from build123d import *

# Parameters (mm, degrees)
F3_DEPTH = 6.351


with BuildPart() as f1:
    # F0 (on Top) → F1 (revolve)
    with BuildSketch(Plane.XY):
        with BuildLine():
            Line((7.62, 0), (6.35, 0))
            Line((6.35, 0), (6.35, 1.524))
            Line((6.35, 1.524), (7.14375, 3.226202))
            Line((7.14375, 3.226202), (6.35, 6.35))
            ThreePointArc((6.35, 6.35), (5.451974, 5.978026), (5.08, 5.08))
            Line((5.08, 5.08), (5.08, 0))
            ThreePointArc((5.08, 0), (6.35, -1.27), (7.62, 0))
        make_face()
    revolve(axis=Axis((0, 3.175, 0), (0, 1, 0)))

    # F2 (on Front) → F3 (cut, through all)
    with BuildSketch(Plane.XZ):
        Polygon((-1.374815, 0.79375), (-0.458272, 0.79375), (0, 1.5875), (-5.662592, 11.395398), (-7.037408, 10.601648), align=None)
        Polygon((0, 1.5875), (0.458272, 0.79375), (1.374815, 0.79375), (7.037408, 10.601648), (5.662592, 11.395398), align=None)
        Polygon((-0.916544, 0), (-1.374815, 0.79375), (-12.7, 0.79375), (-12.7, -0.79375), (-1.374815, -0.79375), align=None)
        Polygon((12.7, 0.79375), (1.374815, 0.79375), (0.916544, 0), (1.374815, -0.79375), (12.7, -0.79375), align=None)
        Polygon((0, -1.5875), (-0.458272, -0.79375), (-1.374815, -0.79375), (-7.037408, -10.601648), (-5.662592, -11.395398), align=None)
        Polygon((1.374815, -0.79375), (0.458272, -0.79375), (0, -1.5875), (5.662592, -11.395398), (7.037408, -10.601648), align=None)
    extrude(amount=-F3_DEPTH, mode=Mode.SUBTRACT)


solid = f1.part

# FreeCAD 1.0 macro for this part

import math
import FreeCAD as App
import Part
import Sketcher
Q = App.Units.Quantity


def add_polygon(sketch, points):
    """Adds a closed chain of lines whose ends are joined by coincident constraints."""
    first, n = sketch.GeometryCount, len(points)
    for a, b in zip(points, points[1:] + points[:1]):
        sketch.addGeometry(Part.LineSegment(App.Vector(*a, 0), App.Vector(*b, 0)), False)
    for i in range(n):
        sketch.addConstraint(Sketcher.Constraint("Coincident", first + i, 2, first + (i + 1) % n, 1))

doc = App.newDocument("Part")
body = doc.addObject("PartDesign::Body", "Body")

# Sketch on XY plane
sketch1 = doc.addObject("Sketcher::SketchObject", "Sketch")
body.addObject(sketch1)
sketch1.AttachmentSupport = (doc.XY_Plane, [""])
sketch1.MapMode = "FlatFace"
sketch1.addGeometry([
    Part.LineSegment(App.Vector(7.62, 0, 0), App.Vector(6.35, 0, 0)),  # 0
    Part.LineSegment(App.Vector(6.35, 0, 0), App.Vector(6.35, 1.524, 0)),  # 1
    Part.LineSegment(App.Vector(6.35, 1.524, 0), App.Vector(7.14375, 3.226202, 0)),  # 2
    Part.LineSegment(App.Vector(7.14375, 3.226202, 0), App.Vector(6.35, 6.35, 0)),  # 3
    Part.ArcOfCircle(Part.Circle(App.Vector(6.349999, 5.080001, 0), App.Vector(0, 0, 1), 1.269999), math.radians(89.99994), math.radians(180.00006)),  # 4
    Part.LineSegment(App.Vector(5.08, 5.08, 0), App.Vector(5.08, 0, 0)),  # 5
    Part.ArcOfCircle(Part.Circle(App.Vector(6.35, 0, 0), App.Vector(0, 0, 1), 1.27), math.radians(180), math.radians(360)),  # 6
], False)
sketch1.addConstraint([
    Sketcher.Constraint("Coincident", 0, 2, 1, 1),
    Sketcher.Constraint("Coincident", 1, 2, 2, 1),
    Sketcher.Constraint("Coincident", 2, 2, 3, 1),
    Sketcher.Constraint("Coincident", 3, 2, 4, 1),
    Sketcher.Constraint("Tangent", 4, 2, 5, 1),
    Sketcher.Constraint("Tangent", 5, 2, 6, 1),
    Sketcher.Constraint("Coincident", 6, 2, 0, 1),
    Sketcher.Constraint("Horizontal", 0),
    Sketcher.Constraint("Vertical", 1),
    Sketcher.Constraint("Vertical", 5),
    Sketcher.Constraint("Coincident", 0, 2, 6, 3),
    Sketcher.Constraint("Equal", 4, 6),
    Sketcher.Constraint("PointOnObject", 6, 3, -1),
    Sketcher.Constraint("Vertical", 1, 2, 3, 2),
    Sketcher.Constraint("Radius", 4, Q("0.0499999 in")),
    Sketcher.Constraint("DistanceY", 5, 2, 5, 1, Q("0.2 in")),
    Sketcher.Constraint("Angle", 2, Q("64.999995 deg")),
    Sketcher.Constraint("DistanceY", 1, 1, 1, 2, Q("0.06 in")),
    Sketcher.Constraint("DistanceX", -1, 1, 4, 2, Q("0.2 in")),
    Sketcher.Constraint("DistanceX", -1, 1, 2, 2, Q("0.28125 in")),
])
revolution = doc.addObject("PartDesign::Revolution", "Revolution")
body.addObject(revolution)
revolution.Profile = sketch1
revolution.ReferenceAxis = (sketch1, ["V_Axis"])
revolution.Angle = 360

# Sketch on XZ plane
sketch2 = doc.addObject("Sketcher::SketchObject", "Sketch001")
body.addObject(sketch2)
sketch2.AttachmentSupport = (doc.XZ_Plane, [""])
sketch2.MapMode = "FlatFace"
add_polygon(sketch2, [(-1.374815, 0.79375), (-0.458272, 0.79375), (0, 1.5875), (-5.662592, 11.395398), (-7.037408, 10.601648)])  # lines 0-4
add_polygon(sketch2, [(0, 1.5875), (0.458272, 0.79375), (1.374815, 0.79375), (7.037408, 10.601648), (5.662592, 11.395398)])  # lines 5-9
add_polygon(sketch2, [(-0.916544, 0), (-1.374815, 0.79375), (-12.7, 0.79375), (-12.7, -0.79375), (-1.374815, -0.79375)])  # lines 10-14
add_polygon(sketch2, [(12.7, 0.79375), (1.374815, 0.79375), (0.916544, 0), (1.374815, -0.79375), (12.7, -0.79375)])  # lines 15-19
add_polygon(sketch2, [(0, -1.5875), (-0.458272, -0.79375), (-1.374815, -0.79375), (-7.037408, -10.601648), (-5.662592, -11.395398)])  # lines 20-24
add_polygon(sketch2, [(1.374815, -0.79375), (0.458272, -0.79375), (0, -1.5875), (5.662592, -11.395398), (7.037408, -10.601648)])  # lines 25-29
sketch2.addConstraint([
    Sketcher.Constraint("Horizontal", 0),
    Sketcher.Constraint("Horizontal", 6),
    Sketcher.Constraint("Horizontal", 11),
    Sketcher.Constraint("Vertical", 12),
    Sketcher.Constraint("Horizontal", 13),
    Sketcher.Constraint("Horizontal", 15),
    Sketcher.Constraint("Horizontal", 18),
    Sketcher.Constraint("Vertical", 19),
    Sketcher.Constraint("Horizontal", 21),
    Sketcher.Constraint("Horizontal", 25),
    Sketcher.Constraint("Coincident", 9, 2, 1, 2),
    Sketcher.Constraint("Coincident", 10, 2, 4, 2),
    Sketcher.Constraint("Coincident", 15, 2, 6, 2),
    Sketcher.Constraint("Coincident", 21, 2, 13, 2),
    Sketcher.Constraint("Coincident", 26, 2, 24, 2),
    Sketcher.Constraint("Coincident", 29, 2, 17, 2),
    Sketcher.Constraint("Symmetric", 6, 2, 13, 2, -1, 1),
    Sketcher.Constraint("Symmetric", 14, 2, 16, 2, -1, 1),
    Sketcher.Constraint("Symmetric", 4, 2, 17, 2, -1, 1),
    Sketcher.Constraint("Symmetric", 7, 2, 22, 2, -1, 1),
    Sketcher.Constraint("Symmetric", 8, 2, 23, 2, -1, 1),
    Sketcher.Constraint("Symmetric", 1, 2, 24, 2, -1, 1),
    Sketcher.Constraint("Symmetric", 2, 2, 27, 2, -1, 1),
    Sketcher.Constraint("Symmetric", 3, 2, 28, 2, -1, 1),
    Sketcher.Constraint("Symmetric", 0, 2, 5, 2, -2),
    Sketcher.Constraint("Symmetric", 3, 2, 7, 2, -2),
    Sketcher.Constraint("Symmetric", 2, 2, 8, 2, -2),
    Sketcher.Constraint("PointOnObject", 1, 2, -2),
    Sketcher.Constraint("PointOnObject", 14, 2, -1),
    Sketcher.Constraint("Perpendicular", 2, 3),
    Sketcher.Constraint("Perpendicular", 3, 4),
    Sketcher.Constraint("Parallel", 4, 5),
    Sketcher.Constraint("Parallel", 1, 7),
    Sketcher.Constraint("Parallel", 5, 10),
    Sketcher.Constraint("Parallel", 17, 20),
    Sketcher.Constraint("Parallel", 24, 26),
    Sketcher.Constraint("Equal", 13, 15),
    Sketcher.Constraint("Equal", 2, 4),
    Sketcher.Constraint("Equal", 5, 10),
    Sketcher.Constraint("Angle", 1, Q("59.999988 deg")),
    Sketcher.Constraint("DistanceX", 11, 2, -1, 1, Q("0.5 in")),
    Sketcher.Constraint("DistanceX", 2, 2, 7, 2, Q("0.5 in")),
    Sketcher.Constraint("DistanceY", 12, 2, 12, 1, Q("0.0625 in")),
])
pocket1 = doc.addObject("PartDesign::Pocket", "Pocket")
body.addObject(pocket1)
pocket1.Profile = sketch2
pocket1.Type = "ThroughAll"

doc.recompute()
